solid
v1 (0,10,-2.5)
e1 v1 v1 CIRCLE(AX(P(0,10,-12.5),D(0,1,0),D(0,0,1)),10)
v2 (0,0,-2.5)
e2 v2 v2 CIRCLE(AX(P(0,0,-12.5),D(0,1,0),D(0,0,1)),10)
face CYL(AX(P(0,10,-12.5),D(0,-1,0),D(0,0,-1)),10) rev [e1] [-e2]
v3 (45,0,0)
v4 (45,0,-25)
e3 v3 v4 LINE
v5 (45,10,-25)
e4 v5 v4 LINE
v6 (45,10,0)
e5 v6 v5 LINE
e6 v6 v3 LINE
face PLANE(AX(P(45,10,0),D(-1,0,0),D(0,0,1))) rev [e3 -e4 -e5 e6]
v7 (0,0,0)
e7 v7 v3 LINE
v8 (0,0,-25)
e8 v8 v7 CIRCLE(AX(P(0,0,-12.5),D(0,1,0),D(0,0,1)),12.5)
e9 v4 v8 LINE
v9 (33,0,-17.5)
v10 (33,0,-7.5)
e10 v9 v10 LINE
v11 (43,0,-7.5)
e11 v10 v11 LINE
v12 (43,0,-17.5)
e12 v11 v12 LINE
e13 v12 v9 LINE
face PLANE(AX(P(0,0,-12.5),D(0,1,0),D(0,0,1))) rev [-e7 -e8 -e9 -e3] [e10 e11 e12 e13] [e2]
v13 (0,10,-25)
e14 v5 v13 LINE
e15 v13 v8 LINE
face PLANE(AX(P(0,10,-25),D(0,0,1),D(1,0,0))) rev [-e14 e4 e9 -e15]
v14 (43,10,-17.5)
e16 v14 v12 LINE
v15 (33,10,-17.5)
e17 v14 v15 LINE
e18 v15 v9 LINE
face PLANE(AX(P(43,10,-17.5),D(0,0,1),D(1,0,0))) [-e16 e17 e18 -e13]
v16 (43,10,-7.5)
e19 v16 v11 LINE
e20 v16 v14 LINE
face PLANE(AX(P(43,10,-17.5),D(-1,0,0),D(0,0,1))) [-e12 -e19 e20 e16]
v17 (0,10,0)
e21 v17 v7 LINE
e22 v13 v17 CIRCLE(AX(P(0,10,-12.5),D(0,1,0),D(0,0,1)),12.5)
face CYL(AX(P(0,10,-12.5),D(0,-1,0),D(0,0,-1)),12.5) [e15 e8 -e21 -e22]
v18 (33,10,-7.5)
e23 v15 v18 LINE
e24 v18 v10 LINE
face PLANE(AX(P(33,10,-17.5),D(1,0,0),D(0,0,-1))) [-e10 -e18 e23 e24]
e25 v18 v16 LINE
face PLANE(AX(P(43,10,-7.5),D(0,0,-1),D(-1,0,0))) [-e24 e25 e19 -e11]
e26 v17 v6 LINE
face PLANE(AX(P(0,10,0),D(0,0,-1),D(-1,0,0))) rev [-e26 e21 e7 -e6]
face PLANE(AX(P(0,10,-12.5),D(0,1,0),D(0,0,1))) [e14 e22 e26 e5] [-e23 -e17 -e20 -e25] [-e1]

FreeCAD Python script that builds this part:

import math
import FreeCAD as App
import Part
import Sketcher
from FreeCAD import Vector

doc = App.newDocument("Part")
body = doc.addObject("PartDesign::Body", "Body")

# Sketch on XZ plane
sketch1 = body.newObject("Sketcher::SketchObject", "Sketch")
sketch1.AttachmentSupport = (doc.getObject("XZ_Plane"), [""])
sketch1.MapMode = "FlatFace"
sketch1.addGeometry([
    Part.LineSegment(Vector(0, 0, 0), Vector(45, 0, 0)),  # 0
    Part.LineSegment(Vector(45, 0, 0), Vector(45, -25, 0)),  # 1
    Part.LineSegment(Vector(45, -25, 0), Vector(0, -25, 0)),  # 2
    Part.ArcOfCircle(Part.Circle(Vector(0, -12, 0), Vector(0, 0, 1), 12), math.radians(90), math.radians(270)),  # 3
    Part.Circle(Vector(0, -12, 0), Vector(0, 0, 1), 10),  # 4
    Part.LineSegment(Vector(43, -8, 0), Vector(33, -8, 0)),  # 5
    Part.LineSegment(Vector(33, -8, 0), Vector(33, -18, 0)),  # 6
    Part.LineSegment(Vector(33, -18, 0), Vector(43, -18, 0)),  # 7
    Part.LineSegment(Vector(43, -18, 0), Vector(43, -8, 0)),  # 8
], False)
sketch1.addConstraint([
    Sketcher.Constraint("Coincident", 0, 2, 1, 1),
    Sketcher.Constraint("Coincident", 1, 2, 2, 1),
    Sketcher.Constraint("Tangent", 2, 2, 3, 2),
    Sketcher.Constraint("Tangent", 3, 1, 0, 1),
    Sketcher.Constraint("Coincident", 5, 2, 6, 1),
    Sketcher.Constraint("Coincident", 6, 2, 7, 1),
    Sketcher.Constraint("Coincident", 7, 2, 8, 1),
    Sketcher.Constraint("Coincident", 8, 2, 5, 1),
    Sketcher.Constraint("Horizontal", 0),
    Sketcher.Constraint("Vertical", 1),
    Sketcher.Constraint("Horizontal", 2),
    Sketcher.Constraint("Horizontal", 5),
    Sketcher.Constraint("Vertical", 6),
    Sketcher.Constraint("Horizontal", 7),
    Sketcher.Constraint("Vertical", 8),
    Sketcher.Constraint("Coincident", 3, 1, -1, 1),
    Sketcher.Constraint("Coincident", 4, 3, 3, 3),
    Sketcher.Constraint("Equal", 7, 6),
    Sketcher.Constraint("Diameter", 4, 20.0),
    Sketcher.Constraint("Radius", 3, 12.5),
    Sketcher.Constraint("DistanceX", 0, 1, 0, 2, 45.0),
    Sketcher.Constraint("DistanceX", 5, 2, 5, 1, 10.0),
    Sketcher.Constraint("DistanceX", -1, 1, 5, 2, 33.0),
    Sketcher.Constraint("DistanceY", 3, 3, 5, 2, 5.0),
])
pad1 = body.newObject("PartDesign::Pad", "Pad")
pad1.Profile = sketch1
pad1.Length = 10
pad1.Reversed = True

doc.recompute()
